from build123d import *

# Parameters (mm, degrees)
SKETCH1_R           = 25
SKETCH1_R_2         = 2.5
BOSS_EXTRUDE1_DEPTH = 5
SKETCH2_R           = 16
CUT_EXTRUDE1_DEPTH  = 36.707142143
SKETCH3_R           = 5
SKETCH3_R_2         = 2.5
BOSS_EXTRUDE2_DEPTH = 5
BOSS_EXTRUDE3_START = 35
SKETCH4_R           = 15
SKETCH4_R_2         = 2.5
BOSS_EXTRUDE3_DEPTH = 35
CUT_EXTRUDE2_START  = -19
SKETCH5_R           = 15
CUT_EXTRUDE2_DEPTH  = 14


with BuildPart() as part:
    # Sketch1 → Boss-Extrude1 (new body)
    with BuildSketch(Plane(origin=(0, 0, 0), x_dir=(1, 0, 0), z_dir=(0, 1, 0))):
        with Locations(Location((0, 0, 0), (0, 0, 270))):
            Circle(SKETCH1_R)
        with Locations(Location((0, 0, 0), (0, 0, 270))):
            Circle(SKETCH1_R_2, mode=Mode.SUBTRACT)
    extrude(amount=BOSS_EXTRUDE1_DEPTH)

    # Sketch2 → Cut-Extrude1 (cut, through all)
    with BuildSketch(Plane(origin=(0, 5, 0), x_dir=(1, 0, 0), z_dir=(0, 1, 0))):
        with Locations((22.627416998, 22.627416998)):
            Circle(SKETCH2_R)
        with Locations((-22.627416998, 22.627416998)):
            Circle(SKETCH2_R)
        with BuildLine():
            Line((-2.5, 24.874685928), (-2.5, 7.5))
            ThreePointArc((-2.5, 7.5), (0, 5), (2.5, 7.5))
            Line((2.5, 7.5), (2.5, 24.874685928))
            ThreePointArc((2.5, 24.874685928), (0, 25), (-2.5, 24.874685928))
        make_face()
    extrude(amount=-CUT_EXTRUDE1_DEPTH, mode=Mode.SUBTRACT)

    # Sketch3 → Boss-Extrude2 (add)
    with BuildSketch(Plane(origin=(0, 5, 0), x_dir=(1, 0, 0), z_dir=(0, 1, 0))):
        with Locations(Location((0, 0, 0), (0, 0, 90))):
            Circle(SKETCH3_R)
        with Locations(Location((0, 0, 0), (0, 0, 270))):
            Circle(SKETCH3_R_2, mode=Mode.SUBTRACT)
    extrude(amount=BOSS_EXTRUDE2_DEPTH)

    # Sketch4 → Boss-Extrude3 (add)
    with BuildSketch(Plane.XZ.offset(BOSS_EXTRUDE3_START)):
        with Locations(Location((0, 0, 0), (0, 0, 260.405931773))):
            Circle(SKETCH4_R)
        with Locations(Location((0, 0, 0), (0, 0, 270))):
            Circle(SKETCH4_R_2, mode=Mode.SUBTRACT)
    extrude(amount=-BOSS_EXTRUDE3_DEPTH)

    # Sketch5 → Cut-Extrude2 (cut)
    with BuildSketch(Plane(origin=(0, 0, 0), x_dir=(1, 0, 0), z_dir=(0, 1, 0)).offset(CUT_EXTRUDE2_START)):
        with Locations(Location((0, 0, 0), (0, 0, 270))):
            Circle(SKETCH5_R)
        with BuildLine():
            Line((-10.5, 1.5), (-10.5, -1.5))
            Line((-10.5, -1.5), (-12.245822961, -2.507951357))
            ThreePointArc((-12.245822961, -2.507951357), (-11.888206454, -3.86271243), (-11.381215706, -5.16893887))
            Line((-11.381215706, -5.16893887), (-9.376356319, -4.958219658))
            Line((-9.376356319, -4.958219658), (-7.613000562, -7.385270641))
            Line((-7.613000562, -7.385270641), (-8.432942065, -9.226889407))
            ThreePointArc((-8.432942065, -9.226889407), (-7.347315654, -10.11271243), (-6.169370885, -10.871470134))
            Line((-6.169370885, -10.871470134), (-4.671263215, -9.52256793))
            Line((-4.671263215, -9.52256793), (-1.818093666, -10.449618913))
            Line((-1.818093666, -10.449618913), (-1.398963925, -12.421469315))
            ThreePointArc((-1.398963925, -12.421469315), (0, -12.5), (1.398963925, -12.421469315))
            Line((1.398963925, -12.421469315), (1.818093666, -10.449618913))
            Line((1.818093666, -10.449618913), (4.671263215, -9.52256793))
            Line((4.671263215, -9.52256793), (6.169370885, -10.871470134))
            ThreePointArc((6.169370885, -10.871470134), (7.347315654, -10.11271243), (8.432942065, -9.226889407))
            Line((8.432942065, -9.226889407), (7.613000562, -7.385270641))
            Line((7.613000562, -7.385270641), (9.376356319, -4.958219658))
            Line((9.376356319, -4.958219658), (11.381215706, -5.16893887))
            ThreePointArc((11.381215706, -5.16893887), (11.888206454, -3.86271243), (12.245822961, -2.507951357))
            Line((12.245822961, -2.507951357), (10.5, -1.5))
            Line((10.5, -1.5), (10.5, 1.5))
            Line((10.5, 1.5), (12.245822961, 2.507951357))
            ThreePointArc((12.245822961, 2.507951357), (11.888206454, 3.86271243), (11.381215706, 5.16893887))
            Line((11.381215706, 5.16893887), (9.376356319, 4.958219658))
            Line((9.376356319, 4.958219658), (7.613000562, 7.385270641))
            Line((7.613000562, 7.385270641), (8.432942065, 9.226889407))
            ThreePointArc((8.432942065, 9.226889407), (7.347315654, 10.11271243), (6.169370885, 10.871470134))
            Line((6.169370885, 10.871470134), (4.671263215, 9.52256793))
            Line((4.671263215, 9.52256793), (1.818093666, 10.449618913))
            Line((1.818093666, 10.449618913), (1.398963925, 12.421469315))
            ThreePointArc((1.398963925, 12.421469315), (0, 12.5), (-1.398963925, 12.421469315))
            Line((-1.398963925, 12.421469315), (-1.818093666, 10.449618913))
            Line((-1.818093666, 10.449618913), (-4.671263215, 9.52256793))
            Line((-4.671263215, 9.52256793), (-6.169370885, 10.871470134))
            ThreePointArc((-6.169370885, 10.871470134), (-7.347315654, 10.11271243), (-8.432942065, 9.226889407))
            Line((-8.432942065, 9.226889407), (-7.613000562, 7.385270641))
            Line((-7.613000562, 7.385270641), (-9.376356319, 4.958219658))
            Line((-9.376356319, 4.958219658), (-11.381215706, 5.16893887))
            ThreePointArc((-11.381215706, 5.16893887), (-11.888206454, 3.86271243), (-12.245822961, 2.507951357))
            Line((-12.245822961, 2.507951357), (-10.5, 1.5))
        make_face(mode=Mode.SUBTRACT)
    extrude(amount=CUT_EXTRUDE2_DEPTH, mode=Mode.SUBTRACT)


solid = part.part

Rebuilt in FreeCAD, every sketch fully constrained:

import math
import FreeCAD as App
import Part
import Sketcher

V = App.Vector
Q = App.Units.Quantity

doc = App.newDocument("Part")
body = doc.addObject("PartDesign::Body", "Body")

sketch1 = doc.addObject("Sketcher::SketchObject", "Sketch")
body.addObject(sketch1)
sketch1.AttachmentSupport = (doc.XZ_Plane, [""])
sketch1.MapMode = "FlatFace"
sketch1.addGeometry([
    Part.Circle(V(0, 0, 0), V(0, 0, 1), 25),
    Part.Circle(V(0, 0, 0), V(0, 0, 1), 2.5),
], False)
sketch1.addConstraint([
    Sketcher.Constraint("Coincident", 0, 3, -1, 1),
    Sketcher.Constraint("Coincident", 1, 3, -1, 1),
    Sketcher.Constraint("Diameter", 0, 50.0),
    Sketcher.Constraint("Diameter", 1, 5.0),
])
pad1 = doc.addObject("PartDesign::Pad", "Pad")
body.addObject(pad1)
pad1.Profile = sketch1
pad1.Length = 5
pad1.Reversed = True

sketch2 = doc.addObject("Sketcher::SketchObject", "Sketch001")
body.addObject(sketch2)
sketch2.AttachmentSupport = (doc.XZ_Plane, [""])
sketch2.MapMode = "FlatFace"
sketch2.AttachmentOffset = App.Placement(V(0, 0, -5), App.Rotation())
sketch2.addGeometry([
    Part.Circle(V(22.6, -22.6, 0), V(0, 0, 1), 16),
    Part.Circle(V(-22.6, -22.6, 0), V(0, 0, 1), 16),
    Part.LineSegment(V(-2.5, -24.9, 0), V(-2.5, -7.5, 0)),
    Part.ArcOfCircle(Part.Circle(V(0, -7.5, 0), V(0, 0, 1), 2.5), math.radians(0), math.radians(180)),
    Part.LineSegment(V(2.5, -7.5, 0), V(2.5, -24.9, 0)),
    Part.ArcOfCircle(Part.Circle(V(0, 0, 0), V(0, 0, 1), 25), math.radians(-95.74), math.radians(-84.26)),
], False)
sketch2.addConstraint([
    Sketcher.Constraint("Tangent", 2, 2, 3, 2),
    Sketcher.Constraint("Tangent", 3, 1, 4, 1),
    Sketcher.Constraint("Coincident", 4, 2, 5, 2),
    Sketcher.Constraint("Coincident", 5, 1, 2, 1),
    Sketcher.Constraint("Vertical", 2),
    Sketcher.Constraint("Vertical", 4),
    Sketcher.Constraint("Coincident", 5, 3, -1, 1),
    Sketcher.Constraint("Equal", 0, 1),
    Sketcher.Constraint("Symmetric", 0, 3, 1, 3, -2),
    Sketcher.Constraint("PointOnObject", 3, 3, -2),
    Sketcher.Constraint("Diameter", 0, 32.0),
    Sketcher.Constraint("Radius", 5, 25.0),
    Sketcher.Constraint("Radius", 3, 2.5),
    Sketcher.Constraint("DistanceY", 3, 3, -1, 1, 7.5),
    Sketcher.Constraint("DistanceY", 4, 2, 0, 3, 2.247269),
    Sketcher.Constraint("DistanceX", -1, 1, 0, 3, 22.627417),
])
pocket1 = doc.addObject("PartDesign::Pocket", "Pocket")
body.addObject(pocket1)
pocket1.Profile = sketch2
pocket1.Type = "ThroughAll"
pocket1.Reversed = True

sketch3 = doc.addObject("Sketcher::SketchObject", "Sketch002")
body.addObject(sketch3)
sketch3.AttachmentSupport = (doc.XZ_Plane, [""])
sketch3.MapMode = "FlatFace"
sketch3.AttachmentOffset = App.Placement(V(0, 0, -5), App.Rotation())
sketch3.addGeometry([
    Part.Circle(V(0, 0, 0), V(0, 0, 1), 5),
    Part.Circle(V(0, 0, 0), V(0, 0, 1), 2.5),
], False)
sketch3.addConstraint([
    Sketcher.Constraint("Coincident", 0, 3, -1, 1),
    Sketcher.Constraint("Coincident", 1, 3, -1, 1),
    Sketcher.Constraint("Diameter", 0, 10.0),
    Sketcher.Constraint("Diameter", 1, 5.0),
])
pad2 = doc.addObject("PartDesign::Pad", "Pad001")
body.addObject(pad2)
pad2.Profile = sketch3
pad2.Length = 5
pad2.Reversed = True

sketch4 = doc.addObject("Sketcher::SketchObject", "Sketch003")
body.addObject(sketch4)
sketch4.AttachmentSupport = (doc.XZ_Plane, [""])
sketch4.MapMode = "FlatFace"
sketch4.AttachmentOffset = App.Placement(V(0, 0, 35), App.Rotation())
sketch4.addGeometry([
    Part.Circle(V(0, 0, 0), V(0, 0, 1), 15),
    Part.Circle(V(0, 0, 0), V(0, 0, 1), 2.5),
], False)
sketch4.addConstraint([
    Sketcher.Constraint("Coincident", 0, 3, -1, 1),
    Sketcher.Constraint("Coincident", 1, 3, -1, 1),
    Sketcher.Constraint("Diameter", 0, 30.0),
    Sketcher.Constraint("Diameter", 1, 5.0),
])
pad3 = doc.addObject("PartDesign::Pad", "Pad002")
body.addObject(pad3)
pad3.Profile = sketch4
pad3.Length = 35
pad3.Reversed = True

sketch5 = doc.addObject("Sketcher::SketchObject", "Sketch004")
body.addObject(sketch5)
sketch5.AttachmentSupport = (doc.XZ_Plane, [""])
sketch5.MapMode = "FlatFace"
sketch5.AttachmentOffset = App.Placement(V(0, 0, 19), App.Rotation())
sketch5.addGeometry([
    Part.Circle(V(0, 0, 0), V(0, 0, 1), 15),
    Part.LineSegment(V(-10.5, 1.5, 0), V(-10.5, -1.5, 0)),
    Part.LineSegment(V(-10.5, -1.5, 0), V(-12.2, -2.5, 0)),
    Part.ArcOfCircle(Part.Circle(V(0, 0, 0), V(0, 0, 1), 12.5), math.radians(-168.43), math.radians(-155.57)),
    Part.LineSegment(V(-11.4, -5.2, 0), V(-9.4, -5, 0)),
    Part.LineSegment(V(-9.4, -5, 0), V(-7.6, -7.4, 0)),
    Part.LineSegment(V(-7.6, -7.4, 0), V(-8.4, -9.2, 0)),
    Part.ArcOfCircle(Part.Circle(V(0, 0, 0), V(0, 0, 1), 12.5), math.radians(-132.43), math.radians(-119.57)),
    Part.LineSegment(V(-6.2, -10.9, 0), V(-4.7, -9.5, 0)),
    Part.LineSegment(V(-4.7, -9.5, 0), V(-1.8, -10.4, 0)),
    Part.LineSegment(V(-1.8, -10.4, 0), V(-1.4, -12.4, 0)),
    Part.ArcOfCircle(Part.Circle(V(0, 0, 0), V(0, 0, 1), 12.5), math.radians(-96.43), math.radians(-83.57)),
    Part.LineSegment(V(1.4, -12.4, 0), V(1.8, -10.4, 0)),
    Part.LineSegment(V(1.8, -10.4, 0), V(4.7, -9.5, 0)),
    Part.LineSegment(V(4.7, -9.5, 0), V(6.2, -10.9, 0)),
    Part.ArcOfCircle(Part.Circle(V(0, 0, 0), V(0, 0, 1), 12.5), math.radians(-60.43), math.radians(-47.57)),
    Part.LineSegment(V(8.4, -9.2, 0), V(7.6, -7.4, 0)),
    Part.LineSegment(V(7.6, -7.4, 0), V(9.4, -5, 0)),
    Part.LineSegment(V(9.4, -5, 0), V(11.4, -5.2, 0)),
    Part.ArcOfCircle(Part.Circle(V(0, 0, 0), V(0, 0, 1), 12.5), math.radians(-24.43), math.radians(-11.57)),
    Part.LineSegment(V(12.2, -2.5, 0), V(10.5, -1.5, 0)),
    Part.LineSegment(V(10.5, -1.5, 0), V(10.5, 1.5, 0)),
    Part.LineSegment(V(10.5, 1.5, 0), V(12.2, 2.5, 0)),
    Part.ArcOfCircle(Part.Circle(V(0, 0, 0), V(0, 0, 1), 12.5), math.radians(11.57), math.radians(24.43)),
    Part.LineSegment(V(11.4, 5.2, 0), V(9.4, 5, 0)),
    Part.LineSegment(V(9.4, 5, 0), V(7.6, 7.4, 0)),
    Part.LineSegment(V(7.6, 7.4, 0), V(8.4, 9.2, 0)),
    Part.ArcOfCircle(Part.Circle(V(0, 0, 0), V(0, 0, 1), 12.5), math.radians(47.57), math.radians(60.43)),
    Part.LineSegment(V(6.2, 10.9, 0), V(4.7, 9.5, 0)),
    Part.LineSegment(V(4.7, 9.5, 0), V(1.8, 10.4, 0)),
    Part.LineSegment(V(1.8, 10.4, 0), V(1.4, 12.4, 0)),
    Part.ArcOfCircle(Part.Circle(V(0, 0, 0), V(0, 0, 1), 12.5), math.radians(83.57), math.radians(96.43)),
    Part.LineSegment(V(-1.4, 12.4, 0), V(-1.8, 10.4, 0)),
    Part.LineSegment(V(-1.8, 10.4, 0), V(-4.7, 9.5, 0)),
    Part.LineSegment(V(-4.7, 9.5, 0), V(-6.2, 10.9, 0)),
    Part.ArcOfCircle(Part.Circle(V(0, 0, 0), V(0, 0, 1), 12.5), math.radians(119.57), math.radians(132.43)),
    Part.LineSegment(V(-8.4, 9.2, 0), V(-7.6, 7.4, 0)),
    Part.LineSegment(V(-7.6, 7.4, 0), V(-9.4, 5, 0)),
    Part.LineSegment(V(-9.4, 5, 0), V(-11.4, 5.2, 0)),
    Part.ArcOfCircle(Part.Circle(V(0, 0, 0), V(0, 0, 1), 12.5), math.radians(155.57), math.radians(168.43)),
    Part.LineSegment(V(-12.2, 2.5, 0), V(-10.5, 1.5, 0)),
], False)
sketch5.addConstraint([
    Sketcher.Constraint("Coincident", 1, 2, 2, 1),
    Sketcher.Constraint("Coincident", 2, 2, 3, 1),
    Sketcher.Constraint("Coincident", 3, 2, 4, 1),
    Sketcher.Constraint("Coincident", 4, 2, 5, 1),
    Sketcher.Constraint("Coincident", 5, 2, 6, 1),
    Sketcher.Constraint("Coincident", 6, 2, 7, 1),
    Sketcher.Constraint("Coincident", 7, 2, 8, 1),
    Sketcher.Constraint("Coincident", 8, 2, 9, 1),
    Sketcher.Constraint("Coincident", 9, 2, 10, 1),
    Sketcher.Constraint("Coincident", 10, 2, 11, 1),
    Sketcher.Constraint("Coincident", 11, 2, 12, 1),
    Sketcher.Constraint("Coincident", 12, 2, 13, 1),
    Sketcher.Constraint("Coincident", 13, 2, 14, 1),
    Sketcher.Constraint("Coincident", 14, 2, 15, 1),
    Sketcher.Constraint("Coincident", 15, 2, 16, 1),
    Sketcher.Constraint("Coincident", 16, 2, 17, 1),
    Sketcher.Constraint("Coincident", 17, 2, 18, 1),
    Sketcher.Constraint("Coincident", 18, 2, 19, 1),
    Sketcher.Constraint("Coincident", 19, 2, 20, 1),
    Sketcher.Constraint("Coincident", 20, 2, 21, 1),
    Sketcher.Constraint("Coincident", 21, 2, 22, 1),
    Sketcher.Constraint("Coincident", 22, 2, 23, 1),
    Sketcher.Constraint("Coincident", 23, 2, 24, 1),
    Sketcher.Constraint("Coincident", 24, 2, 25, 1),
    Sketcher.Constraint("Coincident", 25, 2, 26, 1),
    Sketcher.Constraint("Coincident", 26, 2, 27, 1),
    Sketcher.Constraint("Coincident", 27, 2, 28, 1),
    Sketcher.Constraint("Coincident", 28, 2, 29, 1),
    Sketcher.Constraint("Coincident", 29, 2, 30, 1),
    Sketcher.Constraint("Coincident", 30, 2, 31, 1),
    Sketcher.Constraint("Coincident", 31, 2, 32, 1),
    Sketcher.Constraint("Coincident", 32, 2, 33, 1),
    Sketcher.Constraint("Coincident", 33, 2, 34, 1),
    Sketcher.Constraint("Coincident", 34, 2, 35, 1),
    Sketcher.Constraint("Coincident", 35, 2, 36, 1),
    Sketcher.Constraint("Coincident", 36, 2, 37, 1),
    Sketcher.Constraint("Coincident", 37, 2, 38, 1),
    Sketcher.Constraint("Coincident", 38, 2, 39, 1),
    Sketcher.Constraint("Coincident", 39, 2, 40, 1),
    Sketcher.Constraint("Coincident", 40, 2, 1, 1),
    Sketcher.Constraint("Vertical", 1),
    Sketcher.Constraint("Vertical", 21),
    Sketcher.Constraint("Coincident", 0, 3, -1, 1),
    Sketcher.Constraint("Coincident", 3, 3, -1, 1),
    Sketcher.Constraint("Coincident", 7, 3, -1, 1),
    Sketcher.Constraint("Coincident", 11, 3, -1, 1),
    Sketcher.Constraint("Coincident", 15, 3, -1, 1),
    Sketcher.Constraint("Coincident", 19, 3, -1, 1),
    Sketcher.Constraint("Coincident", 23, 3, -1, 1),
    Sketcher.Constraint("Coincident", 27, 3, -1, 1),
    Sketcher.Constraint("Coincident", 31, 3, -1, 1),
    Sketcher.Constraint("Coincident", 35, 3, -1, 1),
    Sketcher.Constraint("Coincident", 39, 3, -1, 1),
    Sketcher.Constraint("Equal", 3, 7),
    Sketcher.Constraint("Equal", 7, 11),
    Sketcher.Constraint("Equal", 11, 15),
    Sketcher.Constraint("Equal", 15, 19),
    Sketcher.Constraint("Equal", 19, 23),
    Sketcher.Constraint("Equal", 23, 27),
    Sketcher.Constraint("Equal", 27, 31),
    Sketcher.Constraint("Equal", 31, 35),
    Sketcher.Constraint("Equal", 35, 39),
    Sketcher.Constraint("Symmetric", 1, 2, 21, 2, -1, 1),
    Sketcher.Constraint("Symmetric", 4, 2, 24, 2, -1, 1),
    Sketcher.Constraint("Symmetric", 5, 2, 25, 2, -1, 1),
    Sketcher.Constraint("Symmetric", 8, 2, 28, 2, -1, 1),
    Sketcher.Constraint("Symmetric", 9, 2, 29, 2, -1, 1),
    Sketcher.Constraint("Symmetric", 12, 2, 32, 2, -1, 1),
    Sketcher.Constraint("Symmetric", 13, 2, 33, 2, -1, 1),
    Sketcher.Constraint("Symmetric", 16, 2, 36, 2, -1, 1),
    Sketcher.Constraint("Symmetric", 17, 2, 37, 2, -1, 1),
    Sketcher.Constraint("Symmetric", 9, 2, 12, 2, -2),
    Sketcher.Constraint("Symmetric", 8, 2, 13, 2, -2),
    Sketcher.Constraint("Symmetric", 5, 2, 16, 2, -2),
    Sketcher.Constraint("Symmetric", 4, 2, 17, 2, -2),
    Sketcher.Constraint("Parallel", 2, 22),
    Sketcher.Constraint("Parallel", 4, 24),
    Sketcher.Constraint("Parallel", 6, 26),
    Sketcher.Constraint("Parallel", 8, 28),
    Sketcher.Constraint("Parallel", 10, 30),
    Sketcher.Constraint("Parallel", 12, 32),
    Sketcher.Constraint("Parallel", 14, 34),
    Sketcher.Constraint("Parallel", 16, 36),
    Sketcher.Constraint("Parallel", 18, 38),
    Sketcher.Constraint("Parallel", 20, 40),
    Sketcher.Constraint("Horizontal", 10, 2, 11, 2),
    Sketcher.Constraint("Horizontal", 7, 2, 14, 2),
    Sketcher.Constraint("Horizontal", 6, 2, 15, 2),
    Sketcher.Constraint("Horizontal", 3, 2, 18, 2),
    Sketcher.Constraint("Horizontal", 2, 2, 19, 2),
    Sketcher.Constraint("Horizontal", 1, 2, 20, 2),
    Sketcher.Constraint("Horizontal", 22, 2, 39, 2),
    Sketcher.Constraint("Equal", 2, 4),
    Sketcher.Constraint("Equal", 4, 6),
    Sketcher.Constraint("Equal", 6, 8),
    Sketcher.Constraint("Equal", 5, 9),
    Sketcher.Constraint("Equal", 8, 10),
    Sketcher.Constraint("Diameter", 0, 30.0),
    Sketcher.Constraint("Radius", 3, 12.5),
    Sketcher.Constraint("DistanceY", 1, 2, 1, 1, 3.0),
    Sketcher.Constraint("Angle", 2, Q("-150 deg")),
    Sketcher.Constraint("Angle", 4, Q("6 deg")),
    Sketcher.Constraint("Angle", 5, Q("-54 deg")),
    Sketcher.Constraint("Angle", 6, Q("-114 deg")),
    Sketcher.Constraint("Angle", 8, Q("42 deg")),
    Sketcher.Constraint("Angle", 9, Q("-18 deg")),
    Sketcher.Constraint("Angle", 10, Q("-78 deg")),
    Sketcher.Constraint("Distance", 5, 3.0),
    Sketcher.Constraint("DistanceX", 1, 2, -1, 1, 10.5),
])
pocket2 = doc.addObject("PartDesign::Pocket", "Pocket001")
body.addObject(pocket2)
pocket2.Profile = sketch5
pocket2.Length = 14

doc.recompute()
